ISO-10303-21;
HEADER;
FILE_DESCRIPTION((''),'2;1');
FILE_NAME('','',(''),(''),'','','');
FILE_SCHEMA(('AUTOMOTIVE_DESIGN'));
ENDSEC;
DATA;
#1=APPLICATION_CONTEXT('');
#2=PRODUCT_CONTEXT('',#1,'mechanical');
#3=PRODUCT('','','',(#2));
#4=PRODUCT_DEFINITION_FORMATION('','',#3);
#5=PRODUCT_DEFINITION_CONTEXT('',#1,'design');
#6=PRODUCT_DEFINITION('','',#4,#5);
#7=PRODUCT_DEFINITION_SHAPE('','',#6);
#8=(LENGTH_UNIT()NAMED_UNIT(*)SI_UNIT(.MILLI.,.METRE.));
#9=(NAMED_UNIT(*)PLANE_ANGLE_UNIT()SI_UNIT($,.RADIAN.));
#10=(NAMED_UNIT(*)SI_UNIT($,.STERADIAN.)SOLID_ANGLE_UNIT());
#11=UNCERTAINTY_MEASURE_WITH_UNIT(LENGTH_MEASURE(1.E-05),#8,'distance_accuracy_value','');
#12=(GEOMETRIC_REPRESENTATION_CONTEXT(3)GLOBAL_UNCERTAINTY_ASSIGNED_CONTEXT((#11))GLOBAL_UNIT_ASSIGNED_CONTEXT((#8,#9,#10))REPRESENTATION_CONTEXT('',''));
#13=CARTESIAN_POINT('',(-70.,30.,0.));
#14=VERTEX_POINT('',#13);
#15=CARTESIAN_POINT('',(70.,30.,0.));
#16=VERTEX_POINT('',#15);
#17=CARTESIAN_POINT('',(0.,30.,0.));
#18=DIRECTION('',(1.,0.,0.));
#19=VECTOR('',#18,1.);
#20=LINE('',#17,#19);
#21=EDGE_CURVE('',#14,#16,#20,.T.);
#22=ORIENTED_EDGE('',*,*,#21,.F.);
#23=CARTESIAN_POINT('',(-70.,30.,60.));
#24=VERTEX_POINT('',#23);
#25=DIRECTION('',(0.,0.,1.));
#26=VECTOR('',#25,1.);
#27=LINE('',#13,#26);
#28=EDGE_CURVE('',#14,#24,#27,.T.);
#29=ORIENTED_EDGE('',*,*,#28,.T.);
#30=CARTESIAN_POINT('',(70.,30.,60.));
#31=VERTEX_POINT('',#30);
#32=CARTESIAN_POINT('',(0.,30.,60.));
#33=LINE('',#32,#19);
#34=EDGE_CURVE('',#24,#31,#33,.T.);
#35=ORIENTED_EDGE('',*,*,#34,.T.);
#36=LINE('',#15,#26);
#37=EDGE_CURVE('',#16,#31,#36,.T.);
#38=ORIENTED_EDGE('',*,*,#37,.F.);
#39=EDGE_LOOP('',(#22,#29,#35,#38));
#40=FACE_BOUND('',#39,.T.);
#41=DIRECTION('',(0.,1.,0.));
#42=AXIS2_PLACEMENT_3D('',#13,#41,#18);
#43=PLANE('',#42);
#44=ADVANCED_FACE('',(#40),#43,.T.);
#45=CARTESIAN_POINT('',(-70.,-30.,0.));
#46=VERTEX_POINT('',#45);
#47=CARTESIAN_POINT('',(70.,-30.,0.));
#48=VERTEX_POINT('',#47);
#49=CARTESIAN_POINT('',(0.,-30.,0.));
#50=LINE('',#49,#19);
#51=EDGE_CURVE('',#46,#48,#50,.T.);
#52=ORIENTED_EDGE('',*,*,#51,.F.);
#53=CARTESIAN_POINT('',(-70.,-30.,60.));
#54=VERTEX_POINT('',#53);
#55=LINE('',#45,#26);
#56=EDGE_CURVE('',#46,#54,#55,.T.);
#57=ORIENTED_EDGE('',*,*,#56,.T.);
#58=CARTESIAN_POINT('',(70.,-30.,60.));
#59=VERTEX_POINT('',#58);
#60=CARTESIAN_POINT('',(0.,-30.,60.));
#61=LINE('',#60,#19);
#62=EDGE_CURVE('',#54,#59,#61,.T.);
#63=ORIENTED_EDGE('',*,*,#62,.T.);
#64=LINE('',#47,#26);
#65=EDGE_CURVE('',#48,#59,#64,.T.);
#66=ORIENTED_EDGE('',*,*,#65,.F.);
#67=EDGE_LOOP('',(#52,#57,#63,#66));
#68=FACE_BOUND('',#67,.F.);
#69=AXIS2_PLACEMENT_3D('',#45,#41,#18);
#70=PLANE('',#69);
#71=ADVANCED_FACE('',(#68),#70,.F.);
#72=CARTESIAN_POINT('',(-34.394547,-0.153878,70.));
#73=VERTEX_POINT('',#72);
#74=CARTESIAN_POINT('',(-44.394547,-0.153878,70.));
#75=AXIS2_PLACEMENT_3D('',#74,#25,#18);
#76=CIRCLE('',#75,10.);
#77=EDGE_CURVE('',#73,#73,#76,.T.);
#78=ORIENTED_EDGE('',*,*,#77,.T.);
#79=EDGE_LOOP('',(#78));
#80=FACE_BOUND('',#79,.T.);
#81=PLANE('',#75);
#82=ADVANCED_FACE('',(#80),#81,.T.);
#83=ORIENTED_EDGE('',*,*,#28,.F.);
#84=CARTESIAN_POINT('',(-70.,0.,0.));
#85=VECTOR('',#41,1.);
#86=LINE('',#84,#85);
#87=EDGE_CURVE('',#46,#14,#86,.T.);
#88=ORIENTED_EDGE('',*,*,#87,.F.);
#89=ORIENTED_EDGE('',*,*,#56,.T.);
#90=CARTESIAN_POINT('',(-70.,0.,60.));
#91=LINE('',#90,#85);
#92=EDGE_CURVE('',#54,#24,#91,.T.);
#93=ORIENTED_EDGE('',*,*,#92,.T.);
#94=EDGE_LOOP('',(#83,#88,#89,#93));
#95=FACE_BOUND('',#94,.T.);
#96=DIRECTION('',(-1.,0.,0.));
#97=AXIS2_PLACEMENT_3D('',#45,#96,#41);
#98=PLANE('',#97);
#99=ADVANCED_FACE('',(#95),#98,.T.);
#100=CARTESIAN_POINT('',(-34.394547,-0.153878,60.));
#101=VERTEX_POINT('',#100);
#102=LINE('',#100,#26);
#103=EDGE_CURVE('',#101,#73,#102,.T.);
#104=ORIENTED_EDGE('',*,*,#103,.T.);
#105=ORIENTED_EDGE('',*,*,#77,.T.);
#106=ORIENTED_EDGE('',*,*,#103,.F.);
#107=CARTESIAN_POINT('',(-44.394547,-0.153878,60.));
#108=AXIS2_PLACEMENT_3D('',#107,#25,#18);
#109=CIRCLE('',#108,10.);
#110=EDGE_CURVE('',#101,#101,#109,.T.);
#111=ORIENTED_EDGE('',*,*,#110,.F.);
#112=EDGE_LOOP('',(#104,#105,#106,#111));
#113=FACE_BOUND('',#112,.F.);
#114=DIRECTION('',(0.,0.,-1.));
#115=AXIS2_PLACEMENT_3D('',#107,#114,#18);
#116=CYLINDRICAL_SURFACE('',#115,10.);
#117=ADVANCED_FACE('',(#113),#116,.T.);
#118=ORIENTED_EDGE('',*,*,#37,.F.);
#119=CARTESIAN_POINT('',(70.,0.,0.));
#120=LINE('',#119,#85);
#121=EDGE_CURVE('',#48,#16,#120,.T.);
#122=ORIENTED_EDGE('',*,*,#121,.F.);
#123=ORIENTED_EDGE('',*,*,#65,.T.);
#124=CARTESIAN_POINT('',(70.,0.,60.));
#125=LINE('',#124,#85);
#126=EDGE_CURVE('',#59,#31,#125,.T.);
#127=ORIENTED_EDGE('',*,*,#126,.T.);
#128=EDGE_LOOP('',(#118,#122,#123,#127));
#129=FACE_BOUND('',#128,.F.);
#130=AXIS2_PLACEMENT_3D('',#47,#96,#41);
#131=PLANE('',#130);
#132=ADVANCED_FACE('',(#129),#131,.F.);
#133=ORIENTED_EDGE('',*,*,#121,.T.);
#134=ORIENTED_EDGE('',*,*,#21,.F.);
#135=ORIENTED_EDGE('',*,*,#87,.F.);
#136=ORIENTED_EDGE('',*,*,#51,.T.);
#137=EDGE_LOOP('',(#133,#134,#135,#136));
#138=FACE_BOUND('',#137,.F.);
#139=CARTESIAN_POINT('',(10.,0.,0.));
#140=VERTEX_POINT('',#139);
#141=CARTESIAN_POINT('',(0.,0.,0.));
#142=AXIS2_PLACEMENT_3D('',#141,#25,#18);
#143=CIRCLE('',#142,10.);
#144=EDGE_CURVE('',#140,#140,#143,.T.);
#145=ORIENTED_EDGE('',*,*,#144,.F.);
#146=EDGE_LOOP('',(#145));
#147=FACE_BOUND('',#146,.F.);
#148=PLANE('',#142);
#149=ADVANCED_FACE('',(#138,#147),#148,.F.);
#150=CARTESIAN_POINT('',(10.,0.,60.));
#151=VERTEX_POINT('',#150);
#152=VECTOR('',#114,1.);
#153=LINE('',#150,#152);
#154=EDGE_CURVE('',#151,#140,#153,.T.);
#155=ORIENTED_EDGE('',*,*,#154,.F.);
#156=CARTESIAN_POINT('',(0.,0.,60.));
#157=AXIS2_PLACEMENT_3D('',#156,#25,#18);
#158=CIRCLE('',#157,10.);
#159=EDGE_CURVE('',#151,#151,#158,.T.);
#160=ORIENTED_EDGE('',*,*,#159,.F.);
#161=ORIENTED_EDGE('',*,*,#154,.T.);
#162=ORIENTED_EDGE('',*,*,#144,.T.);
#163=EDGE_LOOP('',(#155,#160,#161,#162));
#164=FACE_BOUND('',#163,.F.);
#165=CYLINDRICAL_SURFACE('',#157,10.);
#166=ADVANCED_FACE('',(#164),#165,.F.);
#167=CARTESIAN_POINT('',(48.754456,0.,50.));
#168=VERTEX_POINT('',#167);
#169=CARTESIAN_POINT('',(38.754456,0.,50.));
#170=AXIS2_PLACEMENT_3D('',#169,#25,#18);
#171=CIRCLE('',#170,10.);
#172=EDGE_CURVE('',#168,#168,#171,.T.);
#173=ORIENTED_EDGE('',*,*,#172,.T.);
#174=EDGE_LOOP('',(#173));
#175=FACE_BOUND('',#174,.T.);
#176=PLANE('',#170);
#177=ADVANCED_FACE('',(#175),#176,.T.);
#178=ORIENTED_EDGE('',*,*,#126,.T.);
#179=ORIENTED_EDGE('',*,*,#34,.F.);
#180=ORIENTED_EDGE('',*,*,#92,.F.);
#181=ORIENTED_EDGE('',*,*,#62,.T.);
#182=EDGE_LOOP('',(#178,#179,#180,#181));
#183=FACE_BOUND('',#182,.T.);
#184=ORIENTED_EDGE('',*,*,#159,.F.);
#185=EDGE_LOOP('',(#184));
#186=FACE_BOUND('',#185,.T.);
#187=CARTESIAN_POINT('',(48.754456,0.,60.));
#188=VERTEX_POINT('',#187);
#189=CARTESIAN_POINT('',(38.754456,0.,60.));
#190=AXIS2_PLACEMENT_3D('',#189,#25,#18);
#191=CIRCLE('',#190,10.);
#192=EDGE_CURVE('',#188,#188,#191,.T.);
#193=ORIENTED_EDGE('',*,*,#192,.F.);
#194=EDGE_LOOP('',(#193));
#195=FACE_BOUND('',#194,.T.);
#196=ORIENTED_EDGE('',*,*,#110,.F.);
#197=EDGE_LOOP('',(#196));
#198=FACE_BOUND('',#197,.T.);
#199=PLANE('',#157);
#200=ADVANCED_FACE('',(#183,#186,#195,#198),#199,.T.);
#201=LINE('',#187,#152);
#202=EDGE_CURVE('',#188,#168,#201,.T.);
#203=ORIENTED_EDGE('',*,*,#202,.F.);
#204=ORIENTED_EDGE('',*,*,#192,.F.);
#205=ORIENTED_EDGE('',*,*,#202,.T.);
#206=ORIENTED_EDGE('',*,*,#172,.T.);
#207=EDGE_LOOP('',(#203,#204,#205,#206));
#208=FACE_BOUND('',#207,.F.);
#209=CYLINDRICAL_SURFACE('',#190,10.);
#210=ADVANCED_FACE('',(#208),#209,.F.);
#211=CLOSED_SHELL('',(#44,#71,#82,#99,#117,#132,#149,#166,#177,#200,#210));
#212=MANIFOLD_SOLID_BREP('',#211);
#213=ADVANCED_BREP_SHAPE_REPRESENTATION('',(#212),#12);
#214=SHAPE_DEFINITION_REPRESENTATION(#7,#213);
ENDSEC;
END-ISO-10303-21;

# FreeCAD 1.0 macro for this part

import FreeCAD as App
import Part
import Sketcher
from FreeCAD import Vector
Q = App.Units.Quantity

doc = App.newDocument("Part")
params = doc.addObject("Spreadsheet::Sheet", "Params")
for row, (alias, value) in enumerate([
    ("sketch1_width", "140 mm"),
    ("sketch1_height", "60 mm"),
    ("pad1_length", "60 mm"),
    ("sketch2_diameter", "20 mm"),
    ("pad2_length", "10 mm"),
    ("sketch3_diameter", "20 mm"),
    ("pocket1_length", "10 mm"),
    ("sketch4_diameter", "20 mm"),
    ("pocket2_length", "100.9 mm"),
], start=1):
    params.set(f"A{row}", alias)
    params.set(f"B{row}", "=" + value)
    params.setAlias(f"B{row}", alias)

body = doc.addObject("PartDesign::Body", "Body")

sketch1 = body.newObject("Sketcher::SketchObject", "Sketch")
sketch1.AttachmentSupport = (doc.getObject("XY_Plane"), [""])
sketch1.MapMode = "FlatFace"
sketch1.addGeometry(Part.LineSegment(Vector(-70, 30, 0), Vector(-70, -30, 0)), False)
sketch1.addGeometry(Part.LineSegment(Vector(-70, -30, 0), Vector(70, -30, 0)), False)
sketch1.addGeometry(Part.LineSegment(Vector(70, -30, 0), Vector(70, 30, 0)), False)
sketch1.addGeometry(Part.LineSegment(Vector(70, 30, 0), Vector(-70, 30, 0)), False)
sketch1.addConstraint(Sketcher.Constraint("Coincident", 0, 2, 1, 1))
sketch1.addConstraint(Sketcher.Constraint("Coincident", 1, 2, 2, 1))
sketch1.addConstraint(Sketcher.Constraint("Coincident", 2, 2, 3, 1))
sketch1.addConstraint(Sketcher.Constraint("Coincident", 3, 2, 0, 1))
sketch1.addConstraint(Sketcher.Constraint("Vertical", 0))
sketch1.addConstraint(Sketcher.Constraint("Horizontal", 1))
sketch1.addConstraint(Sketcher.Constraint("Vertical", 2))
sketch1.addConstraint(Sketcher.Constraint("Horizontal", 3))
sketch1.addConstraint(Sketcher.Constraint("Symmetric", 0, 2, 2, 2, -1, 1))
sketch1.addConstraint(Sketcher.Constraint("DistanceX", 1, 1, 1, 2, Q("140 mm")))
sketch1.addConstraint(Sketcher.Constraint("DistanceY", 0, 2, 0, 1, Q("60 mm")))
sketch1.setExpression("Constraints[9]", "Params.sketch1_width")
sketch1.setExpression("Constraints[10]", "Params.sketch1_height")
pad1 = body.newObject("PartDesign::Pad", "Pad")
pad1.Profile = sketch1
pad1.setExpression("Length", "Params.pad1_length")

sketch2 = body.newObject("Sketcher::SketchObject", "Sketch001")
sketch2.AttachmentSupport = (doc.getObject("XY_Plane"), [""])
sketch2.MapMode = "FlatFace"
sketch2.AttachmentOffset = App.Placement(Vector(0, 0, 60), App.Rotation())
sketch2.addGeometry(Part.Circle(Vector(-44.394547, -0.153878, 0), Vector(0, 0, 1), 10), False)
sketch2.addConstraint(Sketcher.Constraint("Diameter", 0, Q("20 mm")))
sketch2.addConstraint(Sketcher.Constraint("DistanceX", 0, 3, -1, 1, Q("44.394547 mm")))
sketch2.addConstraint(Sketcher.Constraint("DistanceY", 0, 3, -1, 1, Q("0.153878 mm")))
sketch2.setExpression("Constraints[0]", "Params.sketch2_diameter")
pad2 = body.newObject("PartDesign::Pad", "Pad001")
pad2.Profile = sketch2
pad2.setExpression("Length", "Params.pad2_length")

sketch3 = body.newObject("Sketcher::SketchObject", "Sketch002")
sketch3.AttachmentSupport = (doc.getObject("XY_Plane"), [""])
sketch3.MapMode = "FlatFace"
sketch3.AttachmentOffset = App.Placement(Vector(0, 0, 60), App.Rotation())
sketch3.addGeometry(Part.Circle(Vector(38.754456, 0, 0), Vector(0, 0, 1), 10), False)
sketch3.addConstraint(Sketcher.Constraint("PointOnObject", 0, 3, -1))
sketch3.addConstraint(Sketcher.Constraint("Diameter", 0, Q("20 mm")))
sketch3.addConstraint(Sketcher.Constraint("DistanceX", -1, 1, 0, 3, Q("38.754456 mm")))
sketch3.setExpression("Constraints[1]", "Params.sketch3_diameter")
pocket1 = body.newObject("PartDesign::Pocket", "Pocket")
pocket1.Profile = sketch3
pocket1.setExpression("Length", "Params.pocket1_length")

sketch4 = body.newObject("Sketcher::SketchObject", "Sketch003")
sketch4.AttachmentSupport = (doc.getObject("XY_Plane"), [""])
sketch4.MapMode = "FlatFace"
sketch4.AttachmentOffset = App.Placement(Vector(0, 0, 60), App.Rotation())
sketch4.addGeometry(Part.Circle(Vector(0, 0, 0), Vector(0, 0, 1), 10), False)
sketch4.addConstraint(Sketcher.Constraint("Coincident", 0, 3, -1, 1))
sketch4.addConstraint(Sketcher.Constraint("Diameter", 0, Q("20 mm")))
sketch4.setExpression("Constraints[1]", "Params.sketch4_diameter")
pocket2 = body.newObject("PartDesign::Pocket", "Pocket001")
pocket2.Profile = sketch4
pocket2.setExpression("Length", "Params.pocket2_length")

doc.recompute()
